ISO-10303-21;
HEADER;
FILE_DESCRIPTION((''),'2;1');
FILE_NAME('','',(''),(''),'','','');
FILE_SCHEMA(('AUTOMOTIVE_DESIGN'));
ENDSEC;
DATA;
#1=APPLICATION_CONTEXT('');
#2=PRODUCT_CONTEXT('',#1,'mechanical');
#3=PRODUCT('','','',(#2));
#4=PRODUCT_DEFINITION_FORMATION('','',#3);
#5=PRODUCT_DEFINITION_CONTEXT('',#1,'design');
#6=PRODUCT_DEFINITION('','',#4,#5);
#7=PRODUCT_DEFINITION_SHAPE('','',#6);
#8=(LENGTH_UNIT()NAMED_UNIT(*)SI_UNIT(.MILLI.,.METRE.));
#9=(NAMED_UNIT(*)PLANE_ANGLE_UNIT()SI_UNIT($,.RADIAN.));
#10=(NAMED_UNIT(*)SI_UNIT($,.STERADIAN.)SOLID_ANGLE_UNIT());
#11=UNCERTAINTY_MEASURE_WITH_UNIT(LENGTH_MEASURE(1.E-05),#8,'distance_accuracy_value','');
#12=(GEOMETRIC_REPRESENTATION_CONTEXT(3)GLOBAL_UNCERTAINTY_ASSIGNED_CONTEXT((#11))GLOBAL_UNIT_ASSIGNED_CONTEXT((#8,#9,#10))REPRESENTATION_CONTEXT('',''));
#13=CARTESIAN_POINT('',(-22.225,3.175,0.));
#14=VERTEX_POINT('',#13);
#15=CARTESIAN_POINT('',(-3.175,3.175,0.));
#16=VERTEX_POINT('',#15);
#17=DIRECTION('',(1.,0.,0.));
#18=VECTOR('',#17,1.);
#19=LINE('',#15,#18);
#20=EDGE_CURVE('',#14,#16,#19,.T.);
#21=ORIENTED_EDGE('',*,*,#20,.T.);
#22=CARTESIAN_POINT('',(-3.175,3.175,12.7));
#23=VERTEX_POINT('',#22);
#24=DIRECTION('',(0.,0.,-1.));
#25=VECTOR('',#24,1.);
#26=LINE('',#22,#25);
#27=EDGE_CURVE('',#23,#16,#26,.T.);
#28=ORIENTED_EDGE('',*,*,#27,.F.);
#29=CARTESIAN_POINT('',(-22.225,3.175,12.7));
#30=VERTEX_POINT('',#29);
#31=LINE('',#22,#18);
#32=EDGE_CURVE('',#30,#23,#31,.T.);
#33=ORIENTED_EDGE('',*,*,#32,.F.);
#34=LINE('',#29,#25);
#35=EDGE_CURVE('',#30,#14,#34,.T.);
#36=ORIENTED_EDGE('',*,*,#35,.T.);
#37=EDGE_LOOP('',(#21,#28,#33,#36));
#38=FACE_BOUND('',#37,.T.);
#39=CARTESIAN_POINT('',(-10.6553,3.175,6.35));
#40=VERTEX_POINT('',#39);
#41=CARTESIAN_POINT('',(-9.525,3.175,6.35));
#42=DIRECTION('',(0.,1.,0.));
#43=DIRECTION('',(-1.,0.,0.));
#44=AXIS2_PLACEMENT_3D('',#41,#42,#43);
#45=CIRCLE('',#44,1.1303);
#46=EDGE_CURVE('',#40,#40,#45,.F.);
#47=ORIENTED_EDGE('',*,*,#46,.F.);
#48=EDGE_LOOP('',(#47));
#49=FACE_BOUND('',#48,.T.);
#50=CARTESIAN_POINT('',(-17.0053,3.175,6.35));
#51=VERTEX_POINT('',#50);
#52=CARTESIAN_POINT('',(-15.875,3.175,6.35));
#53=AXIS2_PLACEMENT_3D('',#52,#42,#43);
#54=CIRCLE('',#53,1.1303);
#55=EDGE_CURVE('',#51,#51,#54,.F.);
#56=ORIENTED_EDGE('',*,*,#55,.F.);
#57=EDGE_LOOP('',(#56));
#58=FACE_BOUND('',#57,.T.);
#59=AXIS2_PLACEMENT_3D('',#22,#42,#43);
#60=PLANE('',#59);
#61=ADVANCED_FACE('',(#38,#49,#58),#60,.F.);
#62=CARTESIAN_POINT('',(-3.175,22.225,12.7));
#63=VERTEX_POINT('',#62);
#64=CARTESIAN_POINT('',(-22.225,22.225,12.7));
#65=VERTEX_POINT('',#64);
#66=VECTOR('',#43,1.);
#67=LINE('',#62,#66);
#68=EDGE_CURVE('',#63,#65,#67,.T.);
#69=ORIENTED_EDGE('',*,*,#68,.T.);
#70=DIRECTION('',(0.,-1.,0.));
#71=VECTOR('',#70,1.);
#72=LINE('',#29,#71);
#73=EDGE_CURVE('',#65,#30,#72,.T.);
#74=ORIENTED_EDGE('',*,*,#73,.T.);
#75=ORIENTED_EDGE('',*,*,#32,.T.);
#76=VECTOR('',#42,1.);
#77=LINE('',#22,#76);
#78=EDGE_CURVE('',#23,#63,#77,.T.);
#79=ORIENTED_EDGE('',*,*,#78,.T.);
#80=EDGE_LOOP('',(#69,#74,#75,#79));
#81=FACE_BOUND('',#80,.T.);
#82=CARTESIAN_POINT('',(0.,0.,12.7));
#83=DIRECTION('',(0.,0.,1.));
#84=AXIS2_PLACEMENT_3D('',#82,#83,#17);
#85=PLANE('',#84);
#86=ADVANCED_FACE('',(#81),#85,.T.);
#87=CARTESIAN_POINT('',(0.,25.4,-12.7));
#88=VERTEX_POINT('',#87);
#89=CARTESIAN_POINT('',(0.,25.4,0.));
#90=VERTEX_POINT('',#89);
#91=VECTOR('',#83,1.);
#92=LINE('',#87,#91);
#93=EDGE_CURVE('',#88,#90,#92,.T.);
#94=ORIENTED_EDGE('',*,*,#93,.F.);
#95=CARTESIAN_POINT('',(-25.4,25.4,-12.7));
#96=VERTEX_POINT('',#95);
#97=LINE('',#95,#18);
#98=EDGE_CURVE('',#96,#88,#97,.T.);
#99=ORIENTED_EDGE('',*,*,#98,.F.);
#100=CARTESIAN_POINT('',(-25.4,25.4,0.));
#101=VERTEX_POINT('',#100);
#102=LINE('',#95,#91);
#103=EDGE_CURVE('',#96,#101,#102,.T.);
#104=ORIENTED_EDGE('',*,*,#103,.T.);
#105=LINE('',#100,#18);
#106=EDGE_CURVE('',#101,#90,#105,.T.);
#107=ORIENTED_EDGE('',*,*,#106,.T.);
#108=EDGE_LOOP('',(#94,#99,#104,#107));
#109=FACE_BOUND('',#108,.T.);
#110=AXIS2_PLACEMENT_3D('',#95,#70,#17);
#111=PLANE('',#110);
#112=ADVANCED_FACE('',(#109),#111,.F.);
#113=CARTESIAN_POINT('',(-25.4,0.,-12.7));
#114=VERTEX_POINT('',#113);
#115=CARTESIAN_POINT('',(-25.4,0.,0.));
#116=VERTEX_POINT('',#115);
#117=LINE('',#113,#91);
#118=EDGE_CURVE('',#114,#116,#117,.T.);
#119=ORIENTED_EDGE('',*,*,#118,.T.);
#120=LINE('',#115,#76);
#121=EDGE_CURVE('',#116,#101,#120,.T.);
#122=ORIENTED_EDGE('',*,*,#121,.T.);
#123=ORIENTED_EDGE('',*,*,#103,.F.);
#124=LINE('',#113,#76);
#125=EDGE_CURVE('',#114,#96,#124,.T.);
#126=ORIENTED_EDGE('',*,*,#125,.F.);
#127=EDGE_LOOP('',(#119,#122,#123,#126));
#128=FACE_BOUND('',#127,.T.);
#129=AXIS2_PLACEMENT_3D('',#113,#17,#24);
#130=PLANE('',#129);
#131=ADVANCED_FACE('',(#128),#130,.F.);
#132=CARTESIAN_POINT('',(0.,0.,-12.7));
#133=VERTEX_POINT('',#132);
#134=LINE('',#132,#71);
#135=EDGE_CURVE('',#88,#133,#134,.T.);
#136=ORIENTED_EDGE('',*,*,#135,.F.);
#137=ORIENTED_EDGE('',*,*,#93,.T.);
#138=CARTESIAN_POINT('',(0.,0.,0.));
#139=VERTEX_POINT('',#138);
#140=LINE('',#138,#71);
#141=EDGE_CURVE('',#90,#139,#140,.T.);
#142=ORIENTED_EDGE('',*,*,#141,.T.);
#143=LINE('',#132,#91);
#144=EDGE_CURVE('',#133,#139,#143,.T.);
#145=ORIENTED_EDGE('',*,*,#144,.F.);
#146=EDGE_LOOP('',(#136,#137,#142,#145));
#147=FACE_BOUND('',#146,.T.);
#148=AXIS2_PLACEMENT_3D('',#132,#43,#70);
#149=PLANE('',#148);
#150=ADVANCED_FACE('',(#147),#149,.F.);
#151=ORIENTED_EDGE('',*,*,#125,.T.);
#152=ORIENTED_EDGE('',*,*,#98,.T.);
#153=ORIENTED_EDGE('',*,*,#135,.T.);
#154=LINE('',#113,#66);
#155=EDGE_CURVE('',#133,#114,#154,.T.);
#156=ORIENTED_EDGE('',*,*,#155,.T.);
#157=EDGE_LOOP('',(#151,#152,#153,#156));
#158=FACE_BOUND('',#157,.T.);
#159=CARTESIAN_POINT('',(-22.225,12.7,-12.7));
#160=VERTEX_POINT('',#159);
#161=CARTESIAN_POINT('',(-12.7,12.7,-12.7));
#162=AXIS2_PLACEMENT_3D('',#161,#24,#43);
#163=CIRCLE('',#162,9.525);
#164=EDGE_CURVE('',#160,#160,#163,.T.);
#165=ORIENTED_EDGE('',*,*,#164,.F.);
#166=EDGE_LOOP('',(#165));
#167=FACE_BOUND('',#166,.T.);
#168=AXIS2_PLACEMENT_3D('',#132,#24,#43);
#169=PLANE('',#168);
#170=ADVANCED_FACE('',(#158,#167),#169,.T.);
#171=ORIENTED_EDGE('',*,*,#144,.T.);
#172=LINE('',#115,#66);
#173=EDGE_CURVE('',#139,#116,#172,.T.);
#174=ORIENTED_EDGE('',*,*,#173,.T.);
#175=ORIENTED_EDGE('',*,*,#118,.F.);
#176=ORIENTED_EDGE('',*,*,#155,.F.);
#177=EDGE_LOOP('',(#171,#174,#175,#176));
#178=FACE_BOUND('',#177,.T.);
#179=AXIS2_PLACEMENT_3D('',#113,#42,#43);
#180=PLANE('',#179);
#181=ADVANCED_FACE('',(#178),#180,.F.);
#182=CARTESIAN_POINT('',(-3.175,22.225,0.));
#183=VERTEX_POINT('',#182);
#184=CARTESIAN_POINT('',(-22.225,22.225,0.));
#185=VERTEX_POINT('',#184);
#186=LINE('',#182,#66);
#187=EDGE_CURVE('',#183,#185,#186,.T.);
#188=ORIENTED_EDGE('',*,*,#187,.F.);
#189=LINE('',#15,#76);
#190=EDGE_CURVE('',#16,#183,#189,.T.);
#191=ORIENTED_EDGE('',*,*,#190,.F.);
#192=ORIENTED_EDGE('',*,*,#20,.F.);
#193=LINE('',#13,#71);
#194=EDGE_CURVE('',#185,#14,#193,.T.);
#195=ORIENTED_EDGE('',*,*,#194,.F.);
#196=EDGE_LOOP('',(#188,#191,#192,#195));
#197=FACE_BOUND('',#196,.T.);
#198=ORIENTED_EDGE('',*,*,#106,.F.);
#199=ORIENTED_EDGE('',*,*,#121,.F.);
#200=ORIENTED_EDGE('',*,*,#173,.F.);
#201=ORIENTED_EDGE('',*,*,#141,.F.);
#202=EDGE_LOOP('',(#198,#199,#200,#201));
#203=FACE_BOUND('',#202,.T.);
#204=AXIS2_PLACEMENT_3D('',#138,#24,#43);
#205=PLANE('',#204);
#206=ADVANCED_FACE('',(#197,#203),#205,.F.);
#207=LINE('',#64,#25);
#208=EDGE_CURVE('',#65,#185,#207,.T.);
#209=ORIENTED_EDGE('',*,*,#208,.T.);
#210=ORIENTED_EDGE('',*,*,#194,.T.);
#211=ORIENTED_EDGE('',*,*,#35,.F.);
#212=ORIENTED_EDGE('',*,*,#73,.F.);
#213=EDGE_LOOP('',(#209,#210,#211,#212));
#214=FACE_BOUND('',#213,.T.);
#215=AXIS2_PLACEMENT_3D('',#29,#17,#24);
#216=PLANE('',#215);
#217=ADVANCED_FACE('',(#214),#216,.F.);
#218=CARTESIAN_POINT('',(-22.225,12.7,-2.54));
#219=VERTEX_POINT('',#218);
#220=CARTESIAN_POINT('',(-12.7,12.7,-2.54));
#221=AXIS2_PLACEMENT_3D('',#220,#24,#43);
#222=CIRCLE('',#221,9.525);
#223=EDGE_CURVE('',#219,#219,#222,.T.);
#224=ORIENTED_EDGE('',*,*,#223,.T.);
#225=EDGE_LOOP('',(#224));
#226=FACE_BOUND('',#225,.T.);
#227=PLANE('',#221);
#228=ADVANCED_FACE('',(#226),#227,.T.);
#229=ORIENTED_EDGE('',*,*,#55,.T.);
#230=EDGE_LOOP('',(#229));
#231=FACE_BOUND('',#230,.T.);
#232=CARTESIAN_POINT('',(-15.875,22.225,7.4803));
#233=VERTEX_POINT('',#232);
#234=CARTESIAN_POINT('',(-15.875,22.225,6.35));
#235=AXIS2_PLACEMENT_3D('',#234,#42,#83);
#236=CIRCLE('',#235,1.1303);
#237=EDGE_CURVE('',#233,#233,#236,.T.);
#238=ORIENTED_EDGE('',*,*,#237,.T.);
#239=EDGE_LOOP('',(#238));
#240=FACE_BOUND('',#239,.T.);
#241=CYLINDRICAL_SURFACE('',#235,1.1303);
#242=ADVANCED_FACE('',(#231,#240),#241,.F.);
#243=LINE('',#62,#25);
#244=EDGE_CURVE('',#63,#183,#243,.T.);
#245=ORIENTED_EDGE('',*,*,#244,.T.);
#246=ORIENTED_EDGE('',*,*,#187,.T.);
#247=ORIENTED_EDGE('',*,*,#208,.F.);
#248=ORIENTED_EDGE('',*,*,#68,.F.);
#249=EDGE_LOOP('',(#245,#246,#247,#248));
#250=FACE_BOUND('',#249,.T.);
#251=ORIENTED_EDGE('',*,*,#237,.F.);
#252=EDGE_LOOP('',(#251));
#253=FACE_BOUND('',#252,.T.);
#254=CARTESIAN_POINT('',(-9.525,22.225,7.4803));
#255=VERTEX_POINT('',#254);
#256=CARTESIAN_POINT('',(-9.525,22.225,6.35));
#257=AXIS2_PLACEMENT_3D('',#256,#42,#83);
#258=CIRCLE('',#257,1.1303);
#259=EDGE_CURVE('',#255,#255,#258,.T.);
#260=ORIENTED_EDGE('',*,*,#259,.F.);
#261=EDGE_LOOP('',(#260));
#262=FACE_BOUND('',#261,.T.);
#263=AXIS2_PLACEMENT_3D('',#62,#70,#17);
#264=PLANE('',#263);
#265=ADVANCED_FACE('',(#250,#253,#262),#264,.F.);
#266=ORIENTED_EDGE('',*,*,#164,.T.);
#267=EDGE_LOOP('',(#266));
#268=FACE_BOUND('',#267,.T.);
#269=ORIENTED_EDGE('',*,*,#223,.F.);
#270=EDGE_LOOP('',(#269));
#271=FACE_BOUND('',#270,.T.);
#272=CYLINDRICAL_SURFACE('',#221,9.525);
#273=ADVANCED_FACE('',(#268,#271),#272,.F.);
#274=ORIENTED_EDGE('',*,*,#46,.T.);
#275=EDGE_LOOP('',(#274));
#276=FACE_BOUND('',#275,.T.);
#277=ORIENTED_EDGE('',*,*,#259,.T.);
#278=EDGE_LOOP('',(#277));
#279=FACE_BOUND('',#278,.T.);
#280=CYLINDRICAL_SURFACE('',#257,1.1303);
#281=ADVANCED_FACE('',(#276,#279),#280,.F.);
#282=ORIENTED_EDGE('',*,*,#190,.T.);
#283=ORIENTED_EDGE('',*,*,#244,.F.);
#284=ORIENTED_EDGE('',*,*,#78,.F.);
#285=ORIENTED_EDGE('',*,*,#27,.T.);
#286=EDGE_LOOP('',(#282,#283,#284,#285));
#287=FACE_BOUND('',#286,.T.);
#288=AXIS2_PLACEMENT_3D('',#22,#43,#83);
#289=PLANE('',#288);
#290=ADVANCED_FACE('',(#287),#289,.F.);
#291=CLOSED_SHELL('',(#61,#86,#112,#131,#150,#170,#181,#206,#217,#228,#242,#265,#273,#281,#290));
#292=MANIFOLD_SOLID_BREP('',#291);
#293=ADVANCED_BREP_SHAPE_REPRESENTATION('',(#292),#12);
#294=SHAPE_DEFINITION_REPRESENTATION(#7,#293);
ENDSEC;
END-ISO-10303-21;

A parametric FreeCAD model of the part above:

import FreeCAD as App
import Part
import Sketcher
from FreeCAD import Vector
Q = App.Units.Quantity

doc = App.newDocument("Part")
body = doc.addObject("PartDesign::Body", "Body")

sketch1 = doc.addObject("Sketcher::SketchObject", "Sketch")
body.addObject(sketch1)
sketch1.AttachmentSupport = (doc.XY_Plane, [""])
sketch1.MapMode = "FlatFace"
sketch1.addGeometry(Part.LineSegment(Vector(-22.225, 22.225, 0), Vector(-22.225, 3.175, 0)), False)
sketch1.addGeometry(Part.LineSegment(Vector(-22.225, 3.175, 0), Vector(-3.175, 3.175, 0)), False)
sketch1.addGeometry(Part.LineSegment(Vector(-3.175, 3.175, 0), Vector(-3.175, 22.225, 0)), False)
sketch1.addGeometry(Part.LineSegment(Vector(-3.175, 22.225, 0), Vector(-22.225, 22.225, 0)), False)
sketch1.addConstraint(Sketcher.Constraint("Coincident", 0, 2, 1, 1))
sketch1.addConstraint(Sketcher.Constraint("Coincident", 1, 2, 2, 1))
sketch1.addConstraint(Sketcher.Constraint("Coincident", 2, 2, 3, 1))
sketch1.addConstraint(Sketcher.Constraint("Coincident", 3, 2, 0, 1))
sketch1.addConstraint(Sketcher.Constraint("Vertical", 0))
sketch1.addConstraint(Sketcher.Constraint("Horizontal", 1))
sketch1.addConstraint(Sketcher.Constraint("Vertical", 2))
sketch1.addConstraint(Sketcher.Constraint("Horizontal", 3))
sketch1.addConstraint(Sketcher.Constraint("Equal", 3, 0))
sketch1.addConstraint(Sketcher.Constraint("DistanceX", 1, 1, 1, 2, Q("0.75 in")))
sketch1.addConstraint(Sketcher.Constraint("DistanceX", 0, 2, -1, 1, Q("0.875 in")))
sketch1.addConstraint(Sketcher.Constraint("DistanceY", -1, 1, 0, 2, Q("0.125 in")))
pad1 = doc.addObject("PartDesign::Pad", "Pad")
body.addObject(pad1)
pad1.Profile = sketch1
pad1.Length = Q("0.5 in")

sketch2 = doc.addObject("Sketcher::SketchObject", "Sketch001")
body.addObject(sketch2)
sketch2.AttachmentSupport = (doc.XY_Plane, [""])
sketch2.MapMode = "FlatFace"
sketch2.addGeometry(Part.LineSegment(Vector(0, 25.4, 0), Vector(0, 0, 0)), False)
sketch2.addGeometry(Part.LineSegment(Vector(0, 0, 0), Vector(-25.4, 0, 0)), False)
sketch2.addGeometry(Part.LineSegment(Vector(-25.4, 0, 0), Vector(-25.4, 25.4, 0)), False)
sketch2.addGeometry(Part.LineSegment(Vector(-25.4, 25.4, 0), Vector(0, 25.4, 0)), False)
sketch2.addConstraint(Sketcher.Constraint("Coincident", 0, 2, 1, 1))
sketch2.addConstraint(Sketcher.Constraint("Coincident", 1, 2, 2, 1))
sketch2.addConstraint(Sketcher.Constraint("Coincident", 2, 2, 3, 1))
sketch2.addConstraint(Sketcher.Constraint("Coincident", 3, 2, 0, 1))
sketch2.addConstraint(Sketcher.Constraint("Vertical", 0))
sketch2.addConstraint(Sketcher.Constraint("Horizontal", 1))
sketch2.addConstraint(Sketcher.Constraint("Vertical", 2))
sketch2.addConstraint(Sketcher.Constraint("Horizontal", 3))
sketch2.addConstraint(Sketcher.Constraint("Coincident", 0, 2, -1, 1))
sketch2.addConstraint(Sketcher.Constraint("Equal", 3, 0))
sketch2.addConstraint(Sketcher.Constraint("DistanceX", 1, 2, 1, 1, Q("1 in")))
pad2 = doc.addObject("PartDesign::Pad", "Pad001")
body.addObject(pad2)
pad2.Profile = sketch2
pad2.Length = Q("0.5 in")
pad2.Reversed = True

sketch3 = doc.addObject("Sketcher::SketchObject", "Sketch002")
body.addObject(sketch3)
sketch3.AttachmentSupport = (doc.XY_Plane, [""])
sketch3.MapMode = "FlatFace"
sketch3.AttachmentOffset = App.Placement(Vector(0, 0, -0.5 * 25.4), App.Rotation())
sketch3.addGeometry(Part.Circle(Vector(-12.7, 12.7, 0), Vector(0, 0, 1), 9.525), False)
sketch3.addConstraint(Sketcher.Constraint("Diameter", 0, Q("0.75 in")))
sketch3.addConstraint(Sketcher.Constraint("DistanceX", 0, 3, -1, 1, Q("0.5 in")))
sketch3.addConstraint(Sketcher.Constraint("DistanceY", -1, 1, 0, 3, Q("0.5 in")))
pocket1 = doc.addObject("PartDesign::Pocket", "Pocket")
body.addObject(pocket1)
pocket1.Profile = sketch3
pocket1.Length = Q("0.4 in")
pocket1.Reversed = True

sketch4 = doc.addObject("Sketcher::SketchObject", "Sketch003")
body.addObject(sketch4)
sketch4.AttachmentSupport = (doc.XZ_Plane, [""])
sketch4.MapMode = "FlatFace"
sketch4.AttachmentOffset = App.Placement(Vector(0, 0, -0.875 * 25.4), App.Rotation())
sketch4.addGeometry(Part.Circle(Vector(-9.525, 6.35, 0), Vector(0, 0, 1), 1.1303), False)
sketch4.addGeometry(Part.Circle(Vector(-15.875, 6.35, 0), Vector(0, 0, 1), 1.1303), False)
sketch4.addConstraint(Sketcher.Constraint("Equal", 0, 1))
sketch4.addConstraint(Sketcher.Constraint("Horizontal", 0, 3, 1, 3))
sketch4.addConstraint(Sketcher.Constraint("Diameter", 0, Q("0.089 in")))
sketch4.addConstraint(Sketcher.Constraint("DistanceY", -1, 1, 0, 3, Q("0.25 in")))
sketch4.addConstraint(Sketcher.Constraint("DistanceX", 1, 3, 0, 3, Q("0.25 in")))
sketch4.addConstraint(Sketcher.Constraint("DistanceX", 0, 3, -1, 1, Q("0.375 in")))
doc.recompute()
hole = doc.addObject("PartDesign::Hole", "Hole")
body.addObject(hole)
hole.Profile = sketch4
hole.ThreadType = "None"
hole.Diameter = Q("0.089 in")
hole.DepthType = "ThroughAll"
hole.Reversed = True

doc.recompute()
